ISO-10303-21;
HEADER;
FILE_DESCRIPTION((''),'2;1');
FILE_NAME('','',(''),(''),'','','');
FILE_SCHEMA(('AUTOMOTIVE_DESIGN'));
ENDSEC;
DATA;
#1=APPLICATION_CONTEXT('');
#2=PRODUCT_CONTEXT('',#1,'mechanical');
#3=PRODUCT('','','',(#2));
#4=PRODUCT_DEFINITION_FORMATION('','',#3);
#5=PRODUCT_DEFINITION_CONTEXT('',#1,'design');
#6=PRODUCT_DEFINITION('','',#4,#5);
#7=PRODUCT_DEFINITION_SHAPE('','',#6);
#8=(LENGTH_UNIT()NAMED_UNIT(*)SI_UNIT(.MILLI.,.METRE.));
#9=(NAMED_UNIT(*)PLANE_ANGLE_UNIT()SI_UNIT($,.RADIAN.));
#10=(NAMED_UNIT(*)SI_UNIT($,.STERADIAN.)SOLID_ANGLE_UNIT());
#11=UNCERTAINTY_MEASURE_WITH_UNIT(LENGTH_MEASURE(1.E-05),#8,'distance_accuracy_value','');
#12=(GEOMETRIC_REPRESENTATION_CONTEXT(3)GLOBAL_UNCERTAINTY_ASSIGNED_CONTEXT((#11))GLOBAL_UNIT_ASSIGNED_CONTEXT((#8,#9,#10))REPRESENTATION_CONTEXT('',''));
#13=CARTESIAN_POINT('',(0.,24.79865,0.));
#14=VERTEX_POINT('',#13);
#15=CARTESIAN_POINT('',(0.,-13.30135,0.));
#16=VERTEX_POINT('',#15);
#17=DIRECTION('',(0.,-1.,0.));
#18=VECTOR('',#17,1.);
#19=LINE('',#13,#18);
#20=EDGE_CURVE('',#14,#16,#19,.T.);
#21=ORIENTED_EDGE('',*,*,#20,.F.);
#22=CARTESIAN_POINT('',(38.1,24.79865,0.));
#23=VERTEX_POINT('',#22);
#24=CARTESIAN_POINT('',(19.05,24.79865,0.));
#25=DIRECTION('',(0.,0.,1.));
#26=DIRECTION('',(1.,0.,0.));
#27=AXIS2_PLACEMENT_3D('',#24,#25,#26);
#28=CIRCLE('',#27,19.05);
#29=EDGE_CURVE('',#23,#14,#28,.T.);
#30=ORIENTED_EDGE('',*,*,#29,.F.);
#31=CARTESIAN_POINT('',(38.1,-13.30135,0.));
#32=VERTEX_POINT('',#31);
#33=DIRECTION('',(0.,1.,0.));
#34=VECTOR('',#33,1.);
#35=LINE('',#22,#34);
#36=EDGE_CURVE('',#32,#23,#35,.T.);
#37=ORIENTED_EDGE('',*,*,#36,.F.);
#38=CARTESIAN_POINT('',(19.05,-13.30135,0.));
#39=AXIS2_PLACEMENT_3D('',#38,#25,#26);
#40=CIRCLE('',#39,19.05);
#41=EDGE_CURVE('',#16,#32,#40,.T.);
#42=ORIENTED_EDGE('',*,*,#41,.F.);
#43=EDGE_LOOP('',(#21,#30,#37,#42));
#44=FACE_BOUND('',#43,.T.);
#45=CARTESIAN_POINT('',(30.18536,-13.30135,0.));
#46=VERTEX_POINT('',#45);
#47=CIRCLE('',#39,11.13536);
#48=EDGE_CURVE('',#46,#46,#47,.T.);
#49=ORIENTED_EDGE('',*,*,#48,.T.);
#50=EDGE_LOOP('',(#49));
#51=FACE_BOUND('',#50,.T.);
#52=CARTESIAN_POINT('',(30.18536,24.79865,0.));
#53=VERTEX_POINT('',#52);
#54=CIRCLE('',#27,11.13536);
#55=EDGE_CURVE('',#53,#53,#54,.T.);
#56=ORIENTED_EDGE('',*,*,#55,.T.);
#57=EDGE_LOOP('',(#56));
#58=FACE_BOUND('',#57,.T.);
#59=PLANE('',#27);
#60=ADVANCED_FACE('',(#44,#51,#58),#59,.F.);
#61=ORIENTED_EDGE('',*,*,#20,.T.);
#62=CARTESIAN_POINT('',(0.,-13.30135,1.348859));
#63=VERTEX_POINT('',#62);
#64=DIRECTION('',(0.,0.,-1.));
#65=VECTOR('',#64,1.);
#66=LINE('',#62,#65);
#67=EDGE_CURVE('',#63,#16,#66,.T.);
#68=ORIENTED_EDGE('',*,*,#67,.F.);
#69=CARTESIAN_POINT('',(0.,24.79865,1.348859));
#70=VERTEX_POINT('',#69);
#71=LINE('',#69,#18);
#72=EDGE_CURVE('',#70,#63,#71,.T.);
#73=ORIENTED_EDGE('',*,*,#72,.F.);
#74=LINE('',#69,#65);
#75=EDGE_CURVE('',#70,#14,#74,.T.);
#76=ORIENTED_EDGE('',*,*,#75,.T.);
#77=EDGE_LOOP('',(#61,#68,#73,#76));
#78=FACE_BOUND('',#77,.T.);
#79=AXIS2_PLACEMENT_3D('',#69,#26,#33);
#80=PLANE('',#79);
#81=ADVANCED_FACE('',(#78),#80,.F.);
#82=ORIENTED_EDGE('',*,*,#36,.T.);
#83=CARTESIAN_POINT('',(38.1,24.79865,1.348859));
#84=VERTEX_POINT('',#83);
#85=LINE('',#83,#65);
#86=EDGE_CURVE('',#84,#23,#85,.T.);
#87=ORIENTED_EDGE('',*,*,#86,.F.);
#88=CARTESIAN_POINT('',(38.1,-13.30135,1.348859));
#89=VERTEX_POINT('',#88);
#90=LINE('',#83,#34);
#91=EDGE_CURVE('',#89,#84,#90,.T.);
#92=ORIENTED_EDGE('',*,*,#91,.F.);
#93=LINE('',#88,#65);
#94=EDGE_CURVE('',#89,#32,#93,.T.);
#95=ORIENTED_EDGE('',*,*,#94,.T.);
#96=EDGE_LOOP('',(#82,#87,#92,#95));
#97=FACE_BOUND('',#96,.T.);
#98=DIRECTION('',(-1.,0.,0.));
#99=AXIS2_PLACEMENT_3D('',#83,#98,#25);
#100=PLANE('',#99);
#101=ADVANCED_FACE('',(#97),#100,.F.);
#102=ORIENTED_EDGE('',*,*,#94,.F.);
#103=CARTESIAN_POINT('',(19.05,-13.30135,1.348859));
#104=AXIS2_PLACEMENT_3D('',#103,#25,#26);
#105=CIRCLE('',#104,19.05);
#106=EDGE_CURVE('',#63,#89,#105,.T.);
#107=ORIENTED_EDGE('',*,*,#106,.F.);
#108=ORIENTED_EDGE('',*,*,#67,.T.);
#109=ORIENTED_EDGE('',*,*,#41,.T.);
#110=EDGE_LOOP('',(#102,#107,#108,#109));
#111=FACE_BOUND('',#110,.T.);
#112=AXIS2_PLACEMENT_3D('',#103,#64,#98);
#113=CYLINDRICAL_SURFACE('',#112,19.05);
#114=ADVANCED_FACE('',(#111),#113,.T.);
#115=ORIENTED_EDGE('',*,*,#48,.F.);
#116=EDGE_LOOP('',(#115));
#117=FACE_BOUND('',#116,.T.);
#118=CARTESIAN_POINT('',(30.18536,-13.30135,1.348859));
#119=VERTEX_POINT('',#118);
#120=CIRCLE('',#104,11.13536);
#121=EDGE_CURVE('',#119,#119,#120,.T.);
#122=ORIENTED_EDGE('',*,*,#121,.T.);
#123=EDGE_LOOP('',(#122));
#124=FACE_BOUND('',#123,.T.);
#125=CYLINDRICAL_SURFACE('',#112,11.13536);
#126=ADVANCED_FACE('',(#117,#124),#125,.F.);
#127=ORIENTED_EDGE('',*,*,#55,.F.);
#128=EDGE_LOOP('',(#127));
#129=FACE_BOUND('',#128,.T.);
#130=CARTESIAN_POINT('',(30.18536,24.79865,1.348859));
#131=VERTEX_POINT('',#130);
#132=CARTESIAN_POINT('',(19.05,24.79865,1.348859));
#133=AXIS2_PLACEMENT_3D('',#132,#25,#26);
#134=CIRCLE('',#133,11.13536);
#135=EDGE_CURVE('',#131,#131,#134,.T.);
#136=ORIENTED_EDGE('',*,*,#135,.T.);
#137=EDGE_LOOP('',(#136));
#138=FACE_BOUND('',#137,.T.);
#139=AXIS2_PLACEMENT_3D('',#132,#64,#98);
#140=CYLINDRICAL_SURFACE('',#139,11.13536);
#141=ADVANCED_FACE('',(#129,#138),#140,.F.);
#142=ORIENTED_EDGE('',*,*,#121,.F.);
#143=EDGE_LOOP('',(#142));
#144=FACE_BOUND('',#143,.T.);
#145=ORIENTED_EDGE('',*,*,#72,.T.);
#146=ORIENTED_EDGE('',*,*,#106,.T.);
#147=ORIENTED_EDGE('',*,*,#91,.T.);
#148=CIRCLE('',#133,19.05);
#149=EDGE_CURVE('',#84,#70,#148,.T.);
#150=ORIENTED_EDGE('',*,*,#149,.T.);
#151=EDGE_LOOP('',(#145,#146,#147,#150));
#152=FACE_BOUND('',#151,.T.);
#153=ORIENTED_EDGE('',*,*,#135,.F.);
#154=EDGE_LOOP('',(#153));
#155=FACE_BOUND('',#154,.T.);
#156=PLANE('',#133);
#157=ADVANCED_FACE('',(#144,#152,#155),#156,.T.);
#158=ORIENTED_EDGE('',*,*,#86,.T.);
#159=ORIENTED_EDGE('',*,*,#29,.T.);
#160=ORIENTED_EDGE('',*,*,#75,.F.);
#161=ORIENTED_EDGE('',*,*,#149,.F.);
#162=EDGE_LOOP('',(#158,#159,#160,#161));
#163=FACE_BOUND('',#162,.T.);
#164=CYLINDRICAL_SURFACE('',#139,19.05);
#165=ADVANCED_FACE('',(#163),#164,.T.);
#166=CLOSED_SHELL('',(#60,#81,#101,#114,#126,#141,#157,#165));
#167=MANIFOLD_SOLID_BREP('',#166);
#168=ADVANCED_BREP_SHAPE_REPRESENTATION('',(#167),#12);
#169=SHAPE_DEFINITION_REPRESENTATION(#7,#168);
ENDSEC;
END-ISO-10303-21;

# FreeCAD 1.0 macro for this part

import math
import FreeCAD as App
import Part
import Sketcher
Q = App.Units.Quantity

doc = App.newDocument("Part")
body = doc.addObject("PartDesign::Body", "Body")

# Sketch on XY plane
sketch1 = body.newObject("Sketcher::SketchObject", "Sketch")
sketch1.AttachmentSupport = (doc.getObject("XY_Plane"), [""])
sketch1.MapMode = "FlatFace"
sketch1.addGeometry(Part.LineSegment(App.Vector(0, 24.79865, 0), App.Vector(0, -13.30135, 0)), False)
sketch1.addGeometry(Part.ArcOfCircle(Part.Circle(App.Vector(19.05, -13.30135, 0), App.Vector(0, 0, 1), 19.05), math.radians(180), math.radians(360)), False)
sketch1.addGeometry(Part.LineSegment(App.Vector(38.1, -13.30135, 0), App.Vector(38.1, 24.79865, 0)), False)
sketch1.addGeometry(Part.ArcOfCircle(Part.Circle(App.Vector(19.05, 24.79865, 0), App.Vector(0, 0, 1), 19.05), math.radians(0), math.radians(180)), False)
sketch1.addGeometry(Part.Circle(App.Vector(19.05, -13.30135, 0), App.Vector(0, 0, 1), 11.13536), False)
sketch1.addGeometry(Part.Circle(App.Vector(19.05, 24.79865, 0), App.Vector(0, 0, 1), 11.13536), False)
sketch1.addConstraint(Sketcher.Constraint("Tangent", 0, 2, 1, 1))
sketch1.addConstraint(Sketcher.Constraint("Tangent", 1, 2, 2, 1))
sketch1.addConstraint(Sketcher.Constraint("Tangent", 2, 2, 3, 1))
sketch1.addConstraint(Sketcher.Constraint("Tangent", 3, 2, 0, 1))
sketch1.addConstraint(Sketcher.Constraint("Vertical", 0))
sketch1.addConstraint(Sketcher.Constraint("Vertical", 2))
sketch1.addConstraint(Sketcher.Constraint("Coincident", 4, 3, 1, 3))
sketch1.addConstraint(Sketcher.Constraint("Coincident", 5, 3, 3, 3))
sketch1.addConstraint(Sketcher.Constraint("Equal", 4, 5))
sketch1.addConstraint(Sketcher.Constraint("PointOnObject", 0, 2, -2))
sketch1.addConstraint(Sketcher.Constraint("Radius", 1, Q("0.75 in")))
sketch1.addConstraint(Sketcher.Constraint("DistanceY", 0, 2, 0, 1, Q("1.5 in")))
sketch1.addConstraint(Sketcher.Constraint("Diameter", 4, Q("0.8768 in")))
sketch1.addConstraint(Sketcher.Constraint("DistanceY", 1, 3, -1, 1, Q("13.30135 mm")))
pad1 = body.newObject("PartDesign::Pad", "Pad")
pad1.Profile = sketch1
pad1.Length = 1.348859

doc.recompute()
